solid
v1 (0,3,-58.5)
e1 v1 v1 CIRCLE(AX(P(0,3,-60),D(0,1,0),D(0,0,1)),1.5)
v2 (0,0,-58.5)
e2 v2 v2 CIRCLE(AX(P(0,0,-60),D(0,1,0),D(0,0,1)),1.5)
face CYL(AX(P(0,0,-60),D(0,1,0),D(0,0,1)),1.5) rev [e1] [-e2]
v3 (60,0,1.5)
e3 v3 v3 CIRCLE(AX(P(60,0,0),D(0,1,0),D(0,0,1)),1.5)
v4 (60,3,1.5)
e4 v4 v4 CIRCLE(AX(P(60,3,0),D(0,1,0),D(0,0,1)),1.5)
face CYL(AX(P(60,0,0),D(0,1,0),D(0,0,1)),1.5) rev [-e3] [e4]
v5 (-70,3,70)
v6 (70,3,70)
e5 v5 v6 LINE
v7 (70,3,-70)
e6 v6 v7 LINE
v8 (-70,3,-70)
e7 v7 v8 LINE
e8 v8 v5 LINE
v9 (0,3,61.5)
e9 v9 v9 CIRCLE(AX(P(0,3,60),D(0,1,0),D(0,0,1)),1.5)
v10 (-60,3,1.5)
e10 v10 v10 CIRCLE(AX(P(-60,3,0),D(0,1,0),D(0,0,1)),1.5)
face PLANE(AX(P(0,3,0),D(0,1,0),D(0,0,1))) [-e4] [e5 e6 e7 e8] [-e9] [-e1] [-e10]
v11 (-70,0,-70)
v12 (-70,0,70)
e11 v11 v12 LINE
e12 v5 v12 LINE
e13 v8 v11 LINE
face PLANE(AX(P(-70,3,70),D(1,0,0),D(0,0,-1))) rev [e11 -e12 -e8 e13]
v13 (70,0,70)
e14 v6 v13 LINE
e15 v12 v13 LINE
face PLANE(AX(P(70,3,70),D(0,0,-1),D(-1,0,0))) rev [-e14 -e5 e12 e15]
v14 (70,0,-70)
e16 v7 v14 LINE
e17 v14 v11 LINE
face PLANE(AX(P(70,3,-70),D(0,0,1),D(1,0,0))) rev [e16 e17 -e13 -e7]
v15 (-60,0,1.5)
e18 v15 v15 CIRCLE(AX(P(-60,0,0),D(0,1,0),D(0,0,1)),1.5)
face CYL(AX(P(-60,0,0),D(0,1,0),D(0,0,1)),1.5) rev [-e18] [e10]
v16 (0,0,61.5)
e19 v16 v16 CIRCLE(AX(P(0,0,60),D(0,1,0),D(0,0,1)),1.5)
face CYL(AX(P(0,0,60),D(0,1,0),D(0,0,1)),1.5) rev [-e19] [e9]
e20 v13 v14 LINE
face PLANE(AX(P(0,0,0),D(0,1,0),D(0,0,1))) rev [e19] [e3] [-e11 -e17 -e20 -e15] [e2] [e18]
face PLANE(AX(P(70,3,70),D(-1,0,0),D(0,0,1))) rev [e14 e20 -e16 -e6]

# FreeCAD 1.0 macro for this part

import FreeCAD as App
import Part
import Sketcher

V = App.Vector
Q = App.Units.Quantity


def add_polygon(sketch, points):
    """Adds a closed chain of lines whose ends are joined by coincident constraints."""
    first, n = sketch.GeometryCount, len(points)
    for a, b in zip(points, points[1:] + points[:1]):
        sketch.addGeometry(Part.LineSegment(App.Vector(*a, 0), App.Vector(*b, 0)), False)
    for i in range(n):
        sketch.addConstraint(Sketcher.Constraint("Coincident", first + i, 2, first + (i + 1) % n, 1))

doc = App.newDocument("Part")
params = doc.addObject("Spreadsheet::Sheet", "Params")
for row, (alias, value) in enumerate([
    ("sketch1_width", "140 mm"),
    ("pad1_length", "3 mm"),
    ("sketch2_diameter", "3 mm"),
], start=1):
    params.set(f"A{row}", alias)
    params.set(f"B{row}", "=" + value)
    params.setAlias(f"B{row}", alias)

body = doc.addObject("PartDesign::Body", "Body")

# Sketch on XZ plane
sketch1 = body.newObject("Sketcher::SketchObject", "Sketch")
sketch1.AttachmentSupport = (doc.getObject("XZ_Plane"), [""])
sketch1.MapMode = "FlatFace"
add_polygon(sketch1, [(-70, -70), (-70, 70), (70, 70), (70, -70)])  # lines 0-3
sketch1.addConstraint([
    Sketcher.Constraint("Vertical", 0),
    Sketcher.Constraint("Horizontal", 1),
    Sketcher.Constraint("Vertical", 2),
    Sketcher.Constraint("Horizontal", 3),
    Sketcher.Constraint("Symmetric", 0, 2, 2, 2, -1, 1),
    Sketcher.Constraint("Equal", 3, 0),
    Sketcher.Constraint("DistanceX", 1, 1, 1, 2, Q("140 mm")),
])
sketch1.setExpression("Constraints[10]", "Params.sketch1_width")
pad1 = body.newObject("PartDesign::Pad", "Pad")
pad1.Profile = sketch1
pad1.setExpression("Length", "Params.pad1_length")
pad1.Reversed = True

# Sketch on XZ plane
sketch2 = body.newObject("Sketcher::SketchObject", "Sketch001")
sketch2.AttachmentSupport = (doc.getObject("XZ_Plane"), [""])
sketch2.MapMode = "FlatFace"
sketch2.AttachmentOffset = App.Placement(V(0, 0, -3), App.Rotation())
sketch2.addGeometry([
    Part.Circle(V(0, -60, 0), V(0, 0, 1), 1.5),
    Part.Circle(V(60, 0, 0), V(0, 0, 1), 1.5),
    Part.Circle(V(0, 60, 0), V(0, 0, 1), 1.5),
    Part.Circle(V(-60, 0, 0), V(0, 0, 1), 1.5),
], False)
sketch2.addConstraint([
    Sketcher.Constraint("Equal", 0, 1),
    Sketcher.Constraint("Equal", 1, 2),
    Sketcher.Constraint("Equal", 2, 3),
    Sketcher.Constraint("Symmetric", 0, 3, 2, 3, -1, 1),
    Sketcher.Constraint("Symmetric", 1, 3, 3, 3, -1, 1),
    Sketcher.Constraint("PointOnObject", 0, 3, -2),
    Sketcher.Constraint("PointOnObject", 1, 3, -1),
    Sketcher.Constraint("Diameter", 0, Q("3 mm")),
    Sketcher.Constraint("DistanceY", 0, 3, -1, 1, Q("60 mm")),
    Sketcher.Constraint("DistanceX", -1, 1, 1, 3, Q("60 mm")),
])
sketch2.setExpression("Constraints[7]", "Params.sketch2_diameter")
pocket1 = body.newObject("PartDesign::Pocket", "Pocket")
pocket1.Profile = sketch2
pocket1.Type = "ThroughAll"
pocket1.Reversed = True

doc.recompute()
